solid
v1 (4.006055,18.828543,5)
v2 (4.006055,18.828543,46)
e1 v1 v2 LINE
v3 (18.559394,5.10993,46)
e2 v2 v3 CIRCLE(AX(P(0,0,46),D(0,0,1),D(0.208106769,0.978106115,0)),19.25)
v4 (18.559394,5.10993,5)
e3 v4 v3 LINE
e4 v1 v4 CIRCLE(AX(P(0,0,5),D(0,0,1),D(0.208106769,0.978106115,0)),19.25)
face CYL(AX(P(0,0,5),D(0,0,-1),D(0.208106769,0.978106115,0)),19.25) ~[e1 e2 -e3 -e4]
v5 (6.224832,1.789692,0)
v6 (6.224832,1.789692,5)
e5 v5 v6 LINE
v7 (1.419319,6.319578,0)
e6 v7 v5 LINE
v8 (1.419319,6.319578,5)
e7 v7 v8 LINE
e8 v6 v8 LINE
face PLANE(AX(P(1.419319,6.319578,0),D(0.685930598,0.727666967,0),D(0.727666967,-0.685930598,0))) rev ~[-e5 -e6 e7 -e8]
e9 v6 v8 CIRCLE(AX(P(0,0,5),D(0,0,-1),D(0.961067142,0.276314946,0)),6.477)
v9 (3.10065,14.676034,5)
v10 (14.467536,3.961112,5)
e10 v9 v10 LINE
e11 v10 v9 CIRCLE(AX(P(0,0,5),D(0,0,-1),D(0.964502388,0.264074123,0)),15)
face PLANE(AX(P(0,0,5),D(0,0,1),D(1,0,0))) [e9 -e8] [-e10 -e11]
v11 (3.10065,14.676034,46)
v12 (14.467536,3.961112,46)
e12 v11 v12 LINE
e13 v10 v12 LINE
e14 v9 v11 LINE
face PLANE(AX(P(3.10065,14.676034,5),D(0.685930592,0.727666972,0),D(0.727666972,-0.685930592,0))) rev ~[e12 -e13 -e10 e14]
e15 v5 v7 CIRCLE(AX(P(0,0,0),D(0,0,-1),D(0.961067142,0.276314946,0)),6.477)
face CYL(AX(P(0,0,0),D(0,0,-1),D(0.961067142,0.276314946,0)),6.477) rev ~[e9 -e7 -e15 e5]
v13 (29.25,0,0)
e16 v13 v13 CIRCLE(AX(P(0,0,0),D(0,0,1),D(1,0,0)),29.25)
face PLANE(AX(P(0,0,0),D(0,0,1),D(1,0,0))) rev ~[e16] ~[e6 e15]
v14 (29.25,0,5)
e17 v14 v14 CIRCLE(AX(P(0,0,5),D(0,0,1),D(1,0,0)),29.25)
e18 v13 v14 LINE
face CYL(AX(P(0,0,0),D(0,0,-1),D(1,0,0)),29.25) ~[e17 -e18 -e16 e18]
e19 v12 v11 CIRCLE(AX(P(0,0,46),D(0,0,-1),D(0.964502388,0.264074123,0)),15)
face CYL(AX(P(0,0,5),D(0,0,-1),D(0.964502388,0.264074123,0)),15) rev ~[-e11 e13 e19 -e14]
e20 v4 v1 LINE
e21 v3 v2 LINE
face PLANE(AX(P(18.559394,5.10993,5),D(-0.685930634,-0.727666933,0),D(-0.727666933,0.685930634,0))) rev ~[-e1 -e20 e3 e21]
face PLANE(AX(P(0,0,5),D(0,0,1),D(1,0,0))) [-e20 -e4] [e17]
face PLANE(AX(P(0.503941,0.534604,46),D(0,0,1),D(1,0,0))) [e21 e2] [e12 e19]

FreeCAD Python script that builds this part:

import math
import FreeCAD as App
import Part
import Sketcher

V = App.Vector
Q = App.Units.Quantity

doc = App.newDocument("Part")
body = doc.addObject("PartDesign::Body", "Body")

# Sketch on XY plane
sketch1 = doc.addObject("Sketcher::SketchObject", "Sketch")
body.addObject(sketch1)
sketch1.AttachmentSupport = (doc.XY_Plane, [""])
sketch1.MapMode = "FlatFace"
sketch1.addGeometry(Part.Circle(V(0, 0, 0), V(0, 0, 1), 29), False)
sketch1.addConstraint(Sketcher.Constraint("Coincident", 0, 3, -1, 1))
sketch1.addConstraint(Sketcher.Constraint("Diameter", 0, Q("58.5 mm")))
pad1 = doc.addObject("PartDesign::Pad", "Pad")
body.addObject(pad1)
pad1.Profile = sketch1
pad1.Length = 5

# Sketch on XY plane
sketch2 = doc.addObject("Sketcher::SketchObject", "Sketch001")
body.addObject(sketch2)
sketch2.AttachmentSupport = (doc.XY_Plane, [""])
sketch2.MapMode = "FlatFace"
sketch2.AttachmentOffset = App.Placement(V(0, 0, 5), App.Rotation())
sketch2.addGeometry(Part.LineSegment(V(19, 5, 0), V(4, 19, 0)), False)
sketch2.addGeometry(Part.ArcOfCircle(Part.Circle(V(0, 0, 0), V(0, 0, 1), 19), math.radians(78), math.radians(375)), False)
sketch2.addGeometry(Part.LineSegment(V(3, 15, 0), V(14, 4, 0)), False)
sketch2.addGeometry(Part.ArcOfCircle(Part.Circle(V(0, 0, 0), V(0, 0, 1), 15), math.radians(78), math.radians(375)), False)
sketch2.addConstraint(Sketcher.Constraint("Coincident", 0, 1, 1, 2))
sketch2.addConstraint(Sketcher.Constraint("Coincident", 1, 1, 0, 2))
sketch2.addConstraint(Sketcher.Constraint("Coincident", 2, 1, 3, 1))
sketch2.addConstraint(Sketcher.Constraint("Coincident", 3, 2, 2, 2))
sketch2.addConstraint(Sketcher.Constraint("Coincident", 1, 3, -1, 1))
sketch2.addConstraint(Sketcher.Constraint("Coincident", 3, 3, -1, 1))
sketch2.addConstraint(Sketcher.Constraint("Parallel", 0, 2))
sketch2.addConstraint(Sketcher.Constraint("Radius", 3, Q("15 mm")))
sketch2.addConstraint(Sketcher.Constraint("Radius", 1, Q("19.25 mm")))
sketch2.addConstraint(Sketcher.Constraint("Distance", 0, Q("20 mm")))
sketch2.addConstraint(Sketcher.Constraint("Distance", 2, Q("15.621 mm")))
sketch2.addConstraint(Sketcher.Constraint("DistanceY", -1, 1, 0, 1, Q("5.10993 mm")))
pad2 = doc.addObject("PartDesign::Pad", "Pad001")
body.addObject(pad2)
pad2.Profile = sketch2
pad2.Length = 41

# Sketch on XY plane
sketch3 = doc.addObject("Sketcher::SketchObject", "Sketch002")
body.addObject(sketch3)
sketch3.AttachmentSupport = (doc.XY_Plane, [""])
sketch3.MapMode = "FlatFace"
sketch3.addGeometry(Part.LineSegment(V(1, 6, 0), V(6, 2, 0)), False)
sketch3.addGeometry(Part.ArcOfCircle(Part.Circle(V(0, 0, 0), V(0, 0, 1), 6), math.radians(77), math.radians(376)), False)
sketch3.addConstraint(Sketcher.Constraint("Coincident", 0, 1, 1, 1))
sketch3.addConstraint(Sketcher.Constraint("Coincident", 1, 2, 0, 2))
sketch3.addConstraint(Sketcher.Constraint("Coincident", 1, 3, -1, 1))
sketch3.addConstraint(Sketcher.Constraint("Radius", 1, Q("6.477 mm")))
sketch3.addConstraint(Sketcher.Constraint("Distance", 0, Q("6.604 mm")))
sketch3.addConstraint(Sketcher.Constraint("DistanceX", -1, 1, 0, 1, Q("1.419319 mm")))
pocket1 = doc.addObject("PartDesign::Pocket", "Pocket")
body.addObject(pocket1)
pocket1.Profile = sketch3
pocket1.Length = 25.4
pocket1.Reversed = True

doc.recompute()
